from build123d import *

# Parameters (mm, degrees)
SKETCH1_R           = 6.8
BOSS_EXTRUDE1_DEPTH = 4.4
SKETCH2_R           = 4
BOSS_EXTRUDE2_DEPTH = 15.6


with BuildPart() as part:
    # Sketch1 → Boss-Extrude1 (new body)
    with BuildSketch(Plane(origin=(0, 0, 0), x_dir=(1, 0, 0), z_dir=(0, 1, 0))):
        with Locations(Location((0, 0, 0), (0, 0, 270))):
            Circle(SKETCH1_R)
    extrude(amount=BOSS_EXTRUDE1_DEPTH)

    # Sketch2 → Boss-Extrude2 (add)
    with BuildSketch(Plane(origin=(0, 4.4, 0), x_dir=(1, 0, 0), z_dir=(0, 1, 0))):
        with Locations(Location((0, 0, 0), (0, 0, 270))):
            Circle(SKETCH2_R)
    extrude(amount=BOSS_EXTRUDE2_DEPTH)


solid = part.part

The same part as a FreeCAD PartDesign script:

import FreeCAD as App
import Part
import Sketcher
from FreeCAD import Vector

doc = App.newDocument("Part")
body = doc.addObject("PartDesign::Body", "Body")

# Sketch on XZ plane
sketch1 = body.newObject("Sketcher::SketchObject", "Sketch")
sketch1.AttachmentSupport = (doc.getObject("XZ_Plane"), [""])
sketch1.MapMode = "FlatFace"
sketch1.addGeometry(Part.Circle(Vector(0, 0, 0), Vector(0, 0, 1), 7), False)
sketch1.addConstraint([
    Sketcher.Constraint("Coincident", 0, 3, -1, 1),
    Sketcher.Constraint("Diameter", 0, 13.6),
])
pad1 = body.newObject("PartDesign::Pad", "Pad")
pad1.Profile = sketch1
pad1.Length = 4.4
pad1.Reversed = True

# Sketch on XZ plane
sketch2 = body.newObject("Sketcher::SketchObject", "Sketch001")
sketch2.AttachmentSupport = (doc.getObject("XZ_Plane"), [""])
sketch2.MapMode = "FlatFace"
sketch2.AttachmentOffset = App.Placement(Vector(0, 0, -4.4), App.Rotation())
sketch2.addGeometry(Part.Circle(Vector(0, 0, 0), Vector(0, 0, 1), 4), False)
sketch2.addConstraint([
    Sketcher.Constraint("Coincident", 0, 3, -1, 1),
    Sketcher.Constraint("Diameter", 0, 8.0),
])
pad2 = body.newObject("PartDesign::Pad", "Pad001")
pad2.Profile = sketch2
pad2.Length = 15.6
pad2.Reversed = True

doc.recompute()
